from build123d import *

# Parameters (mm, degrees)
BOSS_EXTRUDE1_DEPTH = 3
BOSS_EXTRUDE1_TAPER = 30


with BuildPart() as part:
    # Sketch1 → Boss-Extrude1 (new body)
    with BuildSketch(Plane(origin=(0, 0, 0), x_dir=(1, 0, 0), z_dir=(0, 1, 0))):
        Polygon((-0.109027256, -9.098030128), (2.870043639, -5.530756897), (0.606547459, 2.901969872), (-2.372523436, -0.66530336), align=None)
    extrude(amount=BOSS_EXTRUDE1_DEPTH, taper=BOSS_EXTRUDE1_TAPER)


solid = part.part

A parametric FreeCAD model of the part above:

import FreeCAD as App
import Part
import Sketcher

V = App.Vector
Q = App.Units.Quantity

doc = App.newDocument("Part")
params = doc.addObject("Spreadsheet::Sheet", "Params")
for row, (alias, value) in enumerate([
    ("pad1_length", "3 mm"),
    ("pad1_taper", "-30 deg"),
], start=1):
    params.set(f"A{row}", alias)
    params.set(f"B{row}", "=" + value)
    params.setAlias(f"B{row}", alias)

body = doc.addObject("PartDesign::Body", "Body")

# Sketch on XZ plane
sketch1 = body.newObject("Sketcher::SketchObject", "Sketch")
sketch1.AttachmentSupport = (doc.getObject("XZ_Plane"), [""])
sketch1.MapMode = "FlatFace"
sketch1.addGeometry([
    Part.LineSegment(V(-0.1, 9.1, 0), V(2.9, 5.5, 0)),
    Part.LineSegment(V(2.9, 5.5, 0), V(0.6, -2.9, 0)),
    Part.LineSegment(V(0.6, -2.9, 0), V(-2.4, 0.7, 0)),
    Part.LineSegment(V(-2.4, 0.7, 0), V(-0.1, 9.1, 0)),
], False)
sketch1.addConstraint([
    Sketcher.Constraint("Coincident", 0, 2, 1, 1),
    Sketcher.Constraint("Coincident", 1, 2, 2, 1),
    Sketcher.Constraint("Coincident", 2, 2, 3, 1),
    Sketcher.Constraint("Coincident", 3, 2, 0, 1),
    Sketcher.Constraint("Parallel", 0, 2),
    Sketcher.Constraint("Parallel", 1, 3),
    Sketcher.Constraint("DistanceY", 1, 2, 3, 2, Q("12 mm")),
    Sketcher.Constraint("DistanceY", 1, 2, -1, 1, Q("2.90197 mm")),
    Sketcher.Constraint("DistanceX", 2, 2, 1, 2, Q("2.979071 mm")),
    Sketcher.Constraint("Distance", 0, Q("4.647612 mm")),
    Sketcher.Constraint("Distance", 1, Q("8.731225 mm")),
    Sketcher.Constraint("DistanceX", -1, 1, 0, 2, Q("2.870044 mm")),
])
pad1 = body.newObject("PartDesign::Pad", "Pad")
pad1.Profile = sketch1
pad1.setExpression("Length", "Params.pad1_length")
pad1.Reversed = True
pad1.setExpression("TaperAngle", "Params.pad1_taper")

doc.recompute()
